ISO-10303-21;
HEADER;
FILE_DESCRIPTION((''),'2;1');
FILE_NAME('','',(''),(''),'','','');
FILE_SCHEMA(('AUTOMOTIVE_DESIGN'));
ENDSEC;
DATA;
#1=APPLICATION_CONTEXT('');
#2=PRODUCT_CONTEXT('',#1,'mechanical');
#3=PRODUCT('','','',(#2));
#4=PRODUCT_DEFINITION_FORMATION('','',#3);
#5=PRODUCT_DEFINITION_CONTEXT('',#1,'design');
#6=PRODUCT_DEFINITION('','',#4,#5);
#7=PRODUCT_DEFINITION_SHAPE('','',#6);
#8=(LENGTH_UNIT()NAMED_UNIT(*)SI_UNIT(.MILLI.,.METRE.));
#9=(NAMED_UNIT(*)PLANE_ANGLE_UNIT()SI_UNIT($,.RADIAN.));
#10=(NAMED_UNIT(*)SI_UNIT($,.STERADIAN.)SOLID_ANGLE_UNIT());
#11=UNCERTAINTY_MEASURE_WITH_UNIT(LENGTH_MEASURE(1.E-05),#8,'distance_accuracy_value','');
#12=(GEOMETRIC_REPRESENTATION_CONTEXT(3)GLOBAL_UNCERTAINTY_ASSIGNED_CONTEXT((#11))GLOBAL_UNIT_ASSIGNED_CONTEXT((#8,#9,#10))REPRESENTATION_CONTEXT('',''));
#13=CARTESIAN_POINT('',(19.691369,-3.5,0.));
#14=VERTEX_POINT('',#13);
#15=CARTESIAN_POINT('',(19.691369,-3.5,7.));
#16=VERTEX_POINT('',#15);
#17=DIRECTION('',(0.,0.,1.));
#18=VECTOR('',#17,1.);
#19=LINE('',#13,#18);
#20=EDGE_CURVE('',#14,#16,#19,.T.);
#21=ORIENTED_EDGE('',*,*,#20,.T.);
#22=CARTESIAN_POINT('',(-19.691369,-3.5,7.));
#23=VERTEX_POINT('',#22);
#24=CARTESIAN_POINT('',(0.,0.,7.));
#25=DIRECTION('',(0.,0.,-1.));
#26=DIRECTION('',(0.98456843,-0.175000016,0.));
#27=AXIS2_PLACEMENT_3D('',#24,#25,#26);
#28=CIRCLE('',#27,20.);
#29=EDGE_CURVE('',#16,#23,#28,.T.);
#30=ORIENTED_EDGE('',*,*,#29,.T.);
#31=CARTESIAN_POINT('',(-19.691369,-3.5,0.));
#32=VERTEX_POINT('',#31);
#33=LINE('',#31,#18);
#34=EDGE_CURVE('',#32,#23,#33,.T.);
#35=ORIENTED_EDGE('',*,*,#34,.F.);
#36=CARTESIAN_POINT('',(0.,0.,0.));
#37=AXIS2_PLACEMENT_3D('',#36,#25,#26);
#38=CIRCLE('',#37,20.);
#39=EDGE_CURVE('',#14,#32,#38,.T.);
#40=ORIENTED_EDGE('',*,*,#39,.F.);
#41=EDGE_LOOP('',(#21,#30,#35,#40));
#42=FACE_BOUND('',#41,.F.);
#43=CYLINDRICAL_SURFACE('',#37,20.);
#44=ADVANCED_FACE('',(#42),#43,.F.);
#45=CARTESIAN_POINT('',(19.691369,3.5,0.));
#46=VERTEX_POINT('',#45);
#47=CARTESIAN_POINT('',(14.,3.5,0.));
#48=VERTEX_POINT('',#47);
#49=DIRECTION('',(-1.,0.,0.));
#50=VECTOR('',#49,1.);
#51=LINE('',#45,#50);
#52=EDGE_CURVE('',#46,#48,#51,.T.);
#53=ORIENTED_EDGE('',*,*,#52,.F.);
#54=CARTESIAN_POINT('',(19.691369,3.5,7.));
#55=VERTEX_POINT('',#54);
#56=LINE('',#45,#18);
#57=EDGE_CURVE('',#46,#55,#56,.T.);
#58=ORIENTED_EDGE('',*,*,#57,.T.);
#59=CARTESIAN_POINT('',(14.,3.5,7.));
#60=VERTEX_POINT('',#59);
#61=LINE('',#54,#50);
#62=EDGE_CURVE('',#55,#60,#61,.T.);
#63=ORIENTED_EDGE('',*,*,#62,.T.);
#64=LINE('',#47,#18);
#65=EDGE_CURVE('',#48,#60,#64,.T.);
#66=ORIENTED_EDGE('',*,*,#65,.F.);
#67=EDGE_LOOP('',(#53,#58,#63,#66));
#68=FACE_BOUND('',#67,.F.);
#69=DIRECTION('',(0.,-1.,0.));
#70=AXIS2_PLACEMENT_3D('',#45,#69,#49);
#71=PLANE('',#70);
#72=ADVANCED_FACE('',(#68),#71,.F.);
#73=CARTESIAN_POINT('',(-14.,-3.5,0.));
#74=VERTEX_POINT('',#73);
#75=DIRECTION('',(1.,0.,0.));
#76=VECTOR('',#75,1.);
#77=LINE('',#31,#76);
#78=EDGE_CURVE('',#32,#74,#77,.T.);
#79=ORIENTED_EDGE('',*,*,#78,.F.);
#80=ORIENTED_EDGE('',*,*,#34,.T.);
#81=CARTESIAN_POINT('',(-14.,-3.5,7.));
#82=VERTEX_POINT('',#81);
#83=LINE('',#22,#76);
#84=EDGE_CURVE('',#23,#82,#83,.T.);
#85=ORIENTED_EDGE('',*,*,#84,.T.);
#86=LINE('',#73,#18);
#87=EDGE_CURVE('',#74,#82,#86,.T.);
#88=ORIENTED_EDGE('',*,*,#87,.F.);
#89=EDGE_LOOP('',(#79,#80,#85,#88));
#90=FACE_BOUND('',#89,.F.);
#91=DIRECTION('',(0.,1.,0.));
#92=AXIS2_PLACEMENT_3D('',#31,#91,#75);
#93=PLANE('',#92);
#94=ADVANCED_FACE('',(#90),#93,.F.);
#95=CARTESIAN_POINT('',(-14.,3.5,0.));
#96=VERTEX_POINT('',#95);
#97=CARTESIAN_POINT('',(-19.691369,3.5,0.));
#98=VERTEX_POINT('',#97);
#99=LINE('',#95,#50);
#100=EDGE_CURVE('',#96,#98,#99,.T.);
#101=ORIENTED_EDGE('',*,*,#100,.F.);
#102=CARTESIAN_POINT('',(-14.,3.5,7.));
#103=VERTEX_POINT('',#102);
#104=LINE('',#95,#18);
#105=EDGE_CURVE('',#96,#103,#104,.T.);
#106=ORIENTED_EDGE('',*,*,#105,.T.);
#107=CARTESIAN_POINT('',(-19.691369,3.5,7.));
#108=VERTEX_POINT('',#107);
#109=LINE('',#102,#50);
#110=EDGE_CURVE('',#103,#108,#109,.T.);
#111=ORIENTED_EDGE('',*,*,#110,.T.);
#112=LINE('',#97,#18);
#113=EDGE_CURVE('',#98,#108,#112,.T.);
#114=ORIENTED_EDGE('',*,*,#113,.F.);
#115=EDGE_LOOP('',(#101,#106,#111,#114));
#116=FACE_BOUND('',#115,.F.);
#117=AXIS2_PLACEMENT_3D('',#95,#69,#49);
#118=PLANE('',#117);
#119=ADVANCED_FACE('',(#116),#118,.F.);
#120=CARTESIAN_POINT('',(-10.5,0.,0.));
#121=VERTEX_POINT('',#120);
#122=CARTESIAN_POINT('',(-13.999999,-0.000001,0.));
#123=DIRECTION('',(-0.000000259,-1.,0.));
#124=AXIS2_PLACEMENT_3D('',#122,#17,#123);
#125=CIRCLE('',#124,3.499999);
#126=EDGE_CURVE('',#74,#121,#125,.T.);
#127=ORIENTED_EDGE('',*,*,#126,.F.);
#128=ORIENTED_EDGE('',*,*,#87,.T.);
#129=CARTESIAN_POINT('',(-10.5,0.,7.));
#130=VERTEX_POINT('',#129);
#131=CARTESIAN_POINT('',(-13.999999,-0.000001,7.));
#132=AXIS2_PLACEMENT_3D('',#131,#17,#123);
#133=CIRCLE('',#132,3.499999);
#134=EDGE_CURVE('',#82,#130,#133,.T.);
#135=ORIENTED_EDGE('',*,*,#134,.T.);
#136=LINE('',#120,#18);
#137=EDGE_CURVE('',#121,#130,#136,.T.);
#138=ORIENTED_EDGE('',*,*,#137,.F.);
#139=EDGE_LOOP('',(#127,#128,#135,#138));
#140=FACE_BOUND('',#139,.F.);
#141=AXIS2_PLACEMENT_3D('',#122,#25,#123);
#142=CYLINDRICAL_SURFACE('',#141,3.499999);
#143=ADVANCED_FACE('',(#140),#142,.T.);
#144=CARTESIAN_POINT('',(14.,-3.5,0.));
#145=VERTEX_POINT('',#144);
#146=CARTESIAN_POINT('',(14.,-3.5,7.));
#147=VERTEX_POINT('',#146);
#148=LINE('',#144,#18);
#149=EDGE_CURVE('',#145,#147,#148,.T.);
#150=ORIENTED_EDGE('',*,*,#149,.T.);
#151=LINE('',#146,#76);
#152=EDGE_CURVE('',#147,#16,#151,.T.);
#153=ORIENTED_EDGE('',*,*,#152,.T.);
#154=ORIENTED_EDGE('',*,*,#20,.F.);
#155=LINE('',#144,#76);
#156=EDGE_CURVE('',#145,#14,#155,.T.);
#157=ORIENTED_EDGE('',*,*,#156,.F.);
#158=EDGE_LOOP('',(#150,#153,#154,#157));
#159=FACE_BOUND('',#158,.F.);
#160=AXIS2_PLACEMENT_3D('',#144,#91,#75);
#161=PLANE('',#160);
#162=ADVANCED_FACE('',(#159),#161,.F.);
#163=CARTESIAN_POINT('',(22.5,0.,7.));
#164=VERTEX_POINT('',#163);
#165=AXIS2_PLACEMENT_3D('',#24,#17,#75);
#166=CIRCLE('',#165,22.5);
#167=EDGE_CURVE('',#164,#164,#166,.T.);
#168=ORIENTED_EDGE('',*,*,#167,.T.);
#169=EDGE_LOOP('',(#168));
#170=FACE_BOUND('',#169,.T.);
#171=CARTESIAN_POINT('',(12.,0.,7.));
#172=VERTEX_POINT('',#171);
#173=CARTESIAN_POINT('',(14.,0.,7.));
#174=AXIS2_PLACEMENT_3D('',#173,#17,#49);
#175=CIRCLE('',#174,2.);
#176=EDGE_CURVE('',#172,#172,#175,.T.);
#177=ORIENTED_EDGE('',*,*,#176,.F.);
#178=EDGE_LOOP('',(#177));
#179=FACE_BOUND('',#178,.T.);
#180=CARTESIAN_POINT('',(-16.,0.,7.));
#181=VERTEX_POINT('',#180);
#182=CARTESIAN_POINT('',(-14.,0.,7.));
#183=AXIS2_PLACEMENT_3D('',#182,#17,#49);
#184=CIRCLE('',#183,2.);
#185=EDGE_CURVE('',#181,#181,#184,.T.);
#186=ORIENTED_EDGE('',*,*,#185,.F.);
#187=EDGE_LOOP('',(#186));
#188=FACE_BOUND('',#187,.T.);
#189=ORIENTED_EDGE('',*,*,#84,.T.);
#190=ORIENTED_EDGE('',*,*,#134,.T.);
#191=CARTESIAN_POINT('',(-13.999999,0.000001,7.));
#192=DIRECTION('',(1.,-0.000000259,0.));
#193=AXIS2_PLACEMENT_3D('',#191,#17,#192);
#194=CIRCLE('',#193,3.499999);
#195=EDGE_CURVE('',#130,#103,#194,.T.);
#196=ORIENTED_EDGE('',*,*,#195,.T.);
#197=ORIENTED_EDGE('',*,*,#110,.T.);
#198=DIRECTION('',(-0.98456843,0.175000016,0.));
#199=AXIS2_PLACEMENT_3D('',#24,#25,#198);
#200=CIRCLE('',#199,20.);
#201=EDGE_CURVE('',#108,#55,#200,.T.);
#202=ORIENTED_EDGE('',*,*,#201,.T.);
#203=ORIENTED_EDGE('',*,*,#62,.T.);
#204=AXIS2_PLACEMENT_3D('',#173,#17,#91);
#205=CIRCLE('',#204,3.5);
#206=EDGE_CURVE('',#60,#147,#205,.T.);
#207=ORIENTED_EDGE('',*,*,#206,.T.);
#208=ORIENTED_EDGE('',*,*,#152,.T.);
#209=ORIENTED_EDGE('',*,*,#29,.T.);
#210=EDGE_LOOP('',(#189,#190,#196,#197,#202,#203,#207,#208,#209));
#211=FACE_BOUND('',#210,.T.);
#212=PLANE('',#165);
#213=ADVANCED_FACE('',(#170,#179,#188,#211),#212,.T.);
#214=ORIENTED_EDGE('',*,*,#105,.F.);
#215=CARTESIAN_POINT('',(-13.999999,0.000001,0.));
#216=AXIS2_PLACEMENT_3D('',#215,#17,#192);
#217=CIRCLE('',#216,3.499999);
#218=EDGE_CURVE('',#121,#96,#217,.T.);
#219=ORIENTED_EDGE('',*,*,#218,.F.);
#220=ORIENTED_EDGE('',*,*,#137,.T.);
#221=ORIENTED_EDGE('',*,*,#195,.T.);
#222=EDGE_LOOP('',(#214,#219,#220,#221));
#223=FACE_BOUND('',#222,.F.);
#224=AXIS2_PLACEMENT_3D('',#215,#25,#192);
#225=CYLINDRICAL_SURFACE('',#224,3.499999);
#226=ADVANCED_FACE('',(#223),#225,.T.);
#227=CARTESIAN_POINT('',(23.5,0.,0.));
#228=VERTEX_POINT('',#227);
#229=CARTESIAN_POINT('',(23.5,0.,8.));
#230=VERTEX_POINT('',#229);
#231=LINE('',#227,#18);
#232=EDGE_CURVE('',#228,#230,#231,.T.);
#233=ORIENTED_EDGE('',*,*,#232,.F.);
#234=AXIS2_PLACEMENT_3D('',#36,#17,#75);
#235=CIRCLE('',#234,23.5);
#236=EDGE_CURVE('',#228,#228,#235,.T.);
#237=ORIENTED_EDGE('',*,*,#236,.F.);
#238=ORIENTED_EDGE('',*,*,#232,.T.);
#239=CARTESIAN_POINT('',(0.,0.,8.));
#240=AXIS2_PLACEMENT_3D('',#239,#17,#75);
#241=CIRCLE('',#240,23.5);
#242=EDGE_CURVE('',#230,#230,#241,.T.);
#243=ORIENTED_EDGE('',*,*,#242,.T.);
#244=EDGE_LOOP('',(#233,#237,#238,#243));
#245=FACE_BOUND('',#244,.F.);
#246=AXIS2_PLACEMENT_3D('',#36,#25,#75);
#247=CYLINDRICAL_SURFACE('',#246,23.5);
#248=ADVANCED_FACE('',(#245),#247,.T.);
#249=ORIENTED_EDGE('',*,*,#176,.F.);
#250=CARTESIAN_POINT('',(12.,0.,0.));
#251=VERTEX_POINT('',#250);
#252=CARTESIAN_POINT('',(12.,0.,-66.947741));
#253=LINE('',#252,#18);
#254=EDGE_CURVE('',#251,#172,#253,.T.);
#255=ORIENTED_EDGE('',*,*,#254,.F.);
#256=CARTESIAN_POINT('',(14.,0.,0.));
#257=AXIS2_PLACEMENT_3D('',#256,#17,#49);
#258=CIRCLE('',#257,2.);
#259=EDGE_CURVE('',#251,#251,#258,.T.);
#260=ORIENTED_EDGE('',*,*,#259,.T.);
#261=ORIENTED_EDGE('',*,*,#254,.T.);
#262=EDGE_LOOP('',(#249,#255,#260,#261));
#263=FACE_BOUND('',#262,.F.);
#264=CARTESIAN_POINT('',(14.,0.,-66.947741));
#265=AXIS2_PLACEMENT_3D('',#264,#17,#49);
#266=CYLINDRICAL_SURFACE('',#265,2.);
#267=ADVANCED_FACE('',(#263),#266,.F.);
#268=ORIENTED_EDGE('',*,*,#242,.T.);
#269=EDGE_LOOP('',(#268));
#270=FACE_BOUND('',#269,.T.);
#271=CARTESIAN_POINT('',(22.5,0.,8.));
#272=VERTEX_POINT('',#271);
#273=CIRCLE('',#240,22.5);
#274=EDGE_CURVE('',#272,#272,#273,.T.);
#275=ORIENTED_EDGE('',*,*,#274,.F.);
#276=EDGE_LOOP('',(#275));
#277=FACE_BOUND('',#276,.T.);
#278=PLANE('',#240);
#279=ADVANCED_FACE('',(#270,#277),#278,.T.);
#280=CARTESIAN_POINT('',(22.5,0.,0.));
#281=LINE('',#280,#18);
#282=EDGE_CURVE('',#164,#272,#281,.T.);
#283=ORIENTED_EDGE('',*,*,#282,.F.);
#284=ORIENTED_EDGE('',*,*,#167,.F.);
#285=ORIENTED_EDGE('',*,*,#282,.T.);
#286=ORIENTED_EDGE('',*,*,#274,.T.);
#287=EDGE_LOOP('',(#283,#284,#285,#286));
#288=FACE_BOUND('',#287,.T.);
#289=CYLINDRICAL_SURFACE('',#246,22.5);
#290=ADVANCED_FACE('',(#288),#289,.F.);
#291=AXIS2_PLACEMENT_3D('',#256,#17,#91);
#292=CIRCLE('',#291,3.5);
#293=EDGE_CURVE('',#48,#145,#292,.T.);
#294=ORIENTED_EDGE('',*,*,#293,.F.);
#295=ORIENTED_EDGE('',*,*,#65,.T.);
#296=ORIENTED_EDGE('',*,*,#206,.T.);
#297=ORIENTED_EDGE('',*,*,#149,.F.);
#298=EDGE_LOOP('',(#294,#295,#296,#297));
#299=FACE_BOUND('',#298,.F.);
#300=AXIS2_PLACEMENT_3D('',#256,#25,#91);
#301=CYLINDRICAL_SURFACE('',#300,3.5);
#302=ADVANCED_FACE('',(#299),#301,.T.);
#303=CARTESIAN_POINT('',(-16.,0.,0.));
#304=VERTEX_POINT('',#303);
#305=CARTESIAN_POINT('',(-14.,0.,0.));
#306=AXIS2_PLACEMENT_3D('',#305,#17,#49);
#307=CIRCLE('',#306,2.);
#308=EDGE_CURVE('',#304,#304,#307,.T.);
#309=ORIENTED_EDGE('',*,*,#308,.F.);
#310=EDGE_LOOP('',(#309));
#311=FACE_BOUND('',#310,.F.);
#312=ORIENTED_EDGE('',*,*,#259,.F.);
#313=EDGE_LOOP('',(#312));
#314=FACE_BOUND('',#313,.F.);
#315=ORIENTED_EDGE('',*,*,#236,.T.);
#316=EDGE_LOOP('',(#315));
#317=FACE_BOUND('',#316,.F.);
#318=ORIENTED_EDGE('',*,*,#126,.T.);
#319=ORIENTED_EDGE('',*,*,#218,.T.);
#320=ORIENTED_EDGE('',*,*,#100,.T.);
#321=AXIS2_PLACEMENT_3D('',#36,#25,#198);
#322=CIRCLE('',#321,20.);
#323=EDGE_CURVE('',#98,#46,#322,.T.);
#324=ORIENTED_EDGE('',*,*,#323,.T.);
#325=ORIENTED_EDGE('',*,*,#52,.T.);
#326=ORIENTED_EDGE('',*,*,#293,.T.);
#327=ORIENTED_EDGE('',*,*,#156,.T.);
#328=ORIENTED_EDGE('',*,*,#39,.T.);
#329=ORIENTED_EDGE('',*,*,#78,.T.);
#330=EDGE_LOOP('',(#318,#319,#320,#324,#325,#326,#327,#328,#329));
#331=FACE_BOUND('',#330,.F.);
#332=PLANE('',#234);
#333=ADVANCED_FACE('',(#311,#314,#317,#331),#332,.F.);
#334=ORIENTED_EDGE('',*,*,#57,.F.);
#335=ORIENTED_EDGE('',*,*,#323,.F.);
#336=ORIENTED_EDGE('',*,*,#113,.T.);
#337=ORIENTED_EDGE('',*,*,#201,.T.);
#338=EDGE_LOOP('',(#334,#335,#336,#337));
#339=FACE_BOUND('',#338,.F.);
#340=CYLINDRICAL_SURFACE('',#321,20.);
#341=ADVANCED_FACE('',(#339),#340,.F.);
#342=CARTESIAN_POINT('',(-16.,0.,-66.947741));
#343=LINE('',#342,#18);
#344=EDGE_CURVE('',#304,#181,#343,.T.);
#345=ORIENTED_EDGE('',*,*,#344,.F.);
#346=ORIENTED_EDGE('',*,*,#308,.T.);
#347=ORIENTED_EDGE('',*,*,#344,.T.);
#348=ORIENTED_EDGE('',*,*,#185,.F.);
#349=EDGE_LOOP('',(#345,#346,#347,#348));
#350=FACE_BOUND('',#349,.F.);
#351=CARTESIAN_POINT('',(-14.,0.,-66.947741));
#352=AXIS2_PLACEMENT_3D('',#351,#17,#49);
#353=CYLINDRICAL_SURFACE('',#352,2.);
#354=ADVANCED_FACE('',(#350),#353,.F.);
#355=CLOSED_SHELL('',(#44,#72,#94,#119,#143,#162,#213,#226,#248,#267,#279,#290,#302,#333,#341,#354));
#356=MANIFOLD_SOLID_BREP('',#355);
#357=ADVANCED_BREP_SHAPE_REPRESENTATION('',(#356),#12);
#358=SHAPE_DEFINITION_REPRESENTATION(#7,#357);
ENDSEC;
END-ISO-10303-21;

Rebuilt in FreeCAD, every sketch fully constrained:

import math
import FreeCAD as App
import Part
import Sketcher
Q = App.Units.Quantity

doc = App.newDocument("Part")
body = doc.addObject("PartDesign::Body", "Body")

sketch1 = body.newObject("Sketcher::SketchObject", "Sketch")
sketch1.AttachmentSupport = (doc.getObject("XY_Plane"), [""])
sketch1.MapMode = "FlatFace"
sketch1.addGeometry([
    Part.Circle(App.Vector(0, 0, 0), App.Vector(0, 0, 1), 22.5),
    Part.ArcOfCircle(Part.Circle(App.Vector(0, 0, 0), App.Vector(0, 0, 1), 20), math.radians(10), math.radians(170)),
    Part.LineSegment(App.Vector(19.7, 3.5, 0), App.Vector(14, 3.5, 0)),
    Part.ArcOfCircle(Part.Circle(App.Vector(14, 0, 0), App.Vector(0, 0, 1), 3.5), math.radians(90), math.radians(270)),
    Part.LineSegment(App.Vector(14, -3.5, 0), App.Vector(19.7, -3.5, 0)),
    Part.ArcOfCircle(Part.Circle(App.Vector(0, 0, 0), App.Vector(0, 0, 1), 20), math.radians(-170), math.radians(-10)),
    Part.LineSegment(App.Vector(-19.7, -3.5, 0), App.Vector(-14, -3.5, 0)),
    Part.ArcOfCircle(Part.Circle(App.Vector(-14, 0, 0), App.Vector(0, 0, 1), 3.5), math.radians(-90), math.radians(0)),
    Part.ArcOfCircle(Part.Circle(App.Vector(-14, 0, 0), App.Vector(0, 0, 1), 3.5), math.radians(0), math.radians(90)),
    Part.LineSegment(App.Vector(-14, 3.5, 0), App.Vector(-19.7, 3.5, 0)),
], False)
sketch1.addConstraint([
    Sketcher.Constraint("Coincident", 1, 1, 2, 1),
    Sketcher.Constraint("Tangent", 2, 2, 3, 1),
    Sketcher.Constraint("Tangent", 3, 2, 4, 1),
    Sketcher.Constraint("Coincident", 4, 2, 5, 2),
    Sketcher.Constraint("Coincident", 5, 1, 6, 1),
    Sketcher.Constraint("Tangent", 6, 2, 7, 1),
    Sketcher.Constraint("Tangent", 7, 2, 8, 1),
    Sketcher.Constraint("Tangent", 8, 2, 9, 1),
    Sketcher.Constraint("Coincident", 9, 2, 1, 2),
    Sketcher.Constraint("Horizontal", 2),
    Sketcher.Constraint("Horizontal", 4),
    Sketcher.Constraint("Horizontal", 6),
    Sketcher.Constraint("Horizontal", 9),
    Sketcher.Constraint("Coincident", 0, 3, -1, 1),
    Sketcher.Constraint("Coincident", 1, 3, -1, 1),
    Sketcher.Constraint("Coincident", 5, 3, -1, 1),
    Sketcher.Constraint("Equal", 1, 5),
    Sketcher.Constraint("Equal", 3, 7),
    Sketcher.Constraint("Equal", 7, 8),
    Sketcher.Constraint("Symmetric", 3, 3, 7, 3, -1, 1),
    Sketcher.Constraint("PointOnObject", 3, 3, -1),
    Sketcher.Constraint("PointOnObject", 7, 2, -1),
    Sketcher.Constraint("Diameter", 0, Q("45 mm")),
    Sketcher.Constraint("Radius", 1, Q("20 mm")),
    Sketcher.Constraint("Radius", 3, Q("3.5 mm")),
    Sketcher.Constraint("DistanceX", -1, 1, 3, 3, Q("14 mm")),
])
pad1 = body.newObject("PartDesign::Pad", "Pad")
pad1.Profile = sketch1
pad1.Length = 7

sketch2 = body.newObject("Sketcher::SketchObject", "Sketch001")
sketch2.AttachmentSupport = (doc.getObject("XY_Plane"), [""])
sketch2.MapMode = "FlatFace"
sketch2.addGeometry([
    Part.Circle(App.Vector(0, 0, 0), App.Vector(0, 0, 1), 24),
    Part.Circle(App.Vector(0, 0, 0), App.Vector(0, 0, 1), 22),
], False)
sketch2.addConstraint([
    Sketcher.Constraint("Coincident", 0, 3, -1, 1),
    Sketcher.Constraint("Coincident", 1, 3, -1, 1),
    Sketcher.Constraint("Diameter", 0, Q("47 mm")),
    Sketcher.Constraint("Diameter", 1, Q("45 mm")),
])
pad2 = body.newObject("PartDesign::Pad", "Pad001")
pad2.Profile = sketch2
pad2.Length = 8

sketch3 = body.newObject("Sketcher::SketchObject", "Sketch002")
sketch3.AttachmentSupport = (doc.getObject("XY_Plane"), [""])
sketch3.MapMode = "FlatFace"
sketch3.addGeometry([
    Part.Circle(App.Vector(-14, 0, 0), App.Vector(0, 0, 1), 2),
    Part.Circle(App.Vector(14, 0, 0), App.Vector(0, 0, 1), 2),
], False)
sketch3.addConstraint([
    Sketcher.Constraint("Equal", 0, 1),
    Sketcher.Constraint("Symmetric", 0, 3, 1, 3, -1, 1),
    Sketcher.Constraint("PointOnObject", 0, 3, -1),
    Sketcher.Constraint("Diameter", 0, Q("4 mm")),
    Sketcher.Constraint("DistanceX", 0, 3, -1, 1, Q("14 mm")),
])
doc.recompute()
hole = body.newObject("PartDesign::Hole", "Hole")
hole.Profile = sketch3
hole.ThreadType = "None"
hole.Diameter = 4
hole.DepthType = "ThroughAll"
hole.Reversed = True

doc.recompute()
